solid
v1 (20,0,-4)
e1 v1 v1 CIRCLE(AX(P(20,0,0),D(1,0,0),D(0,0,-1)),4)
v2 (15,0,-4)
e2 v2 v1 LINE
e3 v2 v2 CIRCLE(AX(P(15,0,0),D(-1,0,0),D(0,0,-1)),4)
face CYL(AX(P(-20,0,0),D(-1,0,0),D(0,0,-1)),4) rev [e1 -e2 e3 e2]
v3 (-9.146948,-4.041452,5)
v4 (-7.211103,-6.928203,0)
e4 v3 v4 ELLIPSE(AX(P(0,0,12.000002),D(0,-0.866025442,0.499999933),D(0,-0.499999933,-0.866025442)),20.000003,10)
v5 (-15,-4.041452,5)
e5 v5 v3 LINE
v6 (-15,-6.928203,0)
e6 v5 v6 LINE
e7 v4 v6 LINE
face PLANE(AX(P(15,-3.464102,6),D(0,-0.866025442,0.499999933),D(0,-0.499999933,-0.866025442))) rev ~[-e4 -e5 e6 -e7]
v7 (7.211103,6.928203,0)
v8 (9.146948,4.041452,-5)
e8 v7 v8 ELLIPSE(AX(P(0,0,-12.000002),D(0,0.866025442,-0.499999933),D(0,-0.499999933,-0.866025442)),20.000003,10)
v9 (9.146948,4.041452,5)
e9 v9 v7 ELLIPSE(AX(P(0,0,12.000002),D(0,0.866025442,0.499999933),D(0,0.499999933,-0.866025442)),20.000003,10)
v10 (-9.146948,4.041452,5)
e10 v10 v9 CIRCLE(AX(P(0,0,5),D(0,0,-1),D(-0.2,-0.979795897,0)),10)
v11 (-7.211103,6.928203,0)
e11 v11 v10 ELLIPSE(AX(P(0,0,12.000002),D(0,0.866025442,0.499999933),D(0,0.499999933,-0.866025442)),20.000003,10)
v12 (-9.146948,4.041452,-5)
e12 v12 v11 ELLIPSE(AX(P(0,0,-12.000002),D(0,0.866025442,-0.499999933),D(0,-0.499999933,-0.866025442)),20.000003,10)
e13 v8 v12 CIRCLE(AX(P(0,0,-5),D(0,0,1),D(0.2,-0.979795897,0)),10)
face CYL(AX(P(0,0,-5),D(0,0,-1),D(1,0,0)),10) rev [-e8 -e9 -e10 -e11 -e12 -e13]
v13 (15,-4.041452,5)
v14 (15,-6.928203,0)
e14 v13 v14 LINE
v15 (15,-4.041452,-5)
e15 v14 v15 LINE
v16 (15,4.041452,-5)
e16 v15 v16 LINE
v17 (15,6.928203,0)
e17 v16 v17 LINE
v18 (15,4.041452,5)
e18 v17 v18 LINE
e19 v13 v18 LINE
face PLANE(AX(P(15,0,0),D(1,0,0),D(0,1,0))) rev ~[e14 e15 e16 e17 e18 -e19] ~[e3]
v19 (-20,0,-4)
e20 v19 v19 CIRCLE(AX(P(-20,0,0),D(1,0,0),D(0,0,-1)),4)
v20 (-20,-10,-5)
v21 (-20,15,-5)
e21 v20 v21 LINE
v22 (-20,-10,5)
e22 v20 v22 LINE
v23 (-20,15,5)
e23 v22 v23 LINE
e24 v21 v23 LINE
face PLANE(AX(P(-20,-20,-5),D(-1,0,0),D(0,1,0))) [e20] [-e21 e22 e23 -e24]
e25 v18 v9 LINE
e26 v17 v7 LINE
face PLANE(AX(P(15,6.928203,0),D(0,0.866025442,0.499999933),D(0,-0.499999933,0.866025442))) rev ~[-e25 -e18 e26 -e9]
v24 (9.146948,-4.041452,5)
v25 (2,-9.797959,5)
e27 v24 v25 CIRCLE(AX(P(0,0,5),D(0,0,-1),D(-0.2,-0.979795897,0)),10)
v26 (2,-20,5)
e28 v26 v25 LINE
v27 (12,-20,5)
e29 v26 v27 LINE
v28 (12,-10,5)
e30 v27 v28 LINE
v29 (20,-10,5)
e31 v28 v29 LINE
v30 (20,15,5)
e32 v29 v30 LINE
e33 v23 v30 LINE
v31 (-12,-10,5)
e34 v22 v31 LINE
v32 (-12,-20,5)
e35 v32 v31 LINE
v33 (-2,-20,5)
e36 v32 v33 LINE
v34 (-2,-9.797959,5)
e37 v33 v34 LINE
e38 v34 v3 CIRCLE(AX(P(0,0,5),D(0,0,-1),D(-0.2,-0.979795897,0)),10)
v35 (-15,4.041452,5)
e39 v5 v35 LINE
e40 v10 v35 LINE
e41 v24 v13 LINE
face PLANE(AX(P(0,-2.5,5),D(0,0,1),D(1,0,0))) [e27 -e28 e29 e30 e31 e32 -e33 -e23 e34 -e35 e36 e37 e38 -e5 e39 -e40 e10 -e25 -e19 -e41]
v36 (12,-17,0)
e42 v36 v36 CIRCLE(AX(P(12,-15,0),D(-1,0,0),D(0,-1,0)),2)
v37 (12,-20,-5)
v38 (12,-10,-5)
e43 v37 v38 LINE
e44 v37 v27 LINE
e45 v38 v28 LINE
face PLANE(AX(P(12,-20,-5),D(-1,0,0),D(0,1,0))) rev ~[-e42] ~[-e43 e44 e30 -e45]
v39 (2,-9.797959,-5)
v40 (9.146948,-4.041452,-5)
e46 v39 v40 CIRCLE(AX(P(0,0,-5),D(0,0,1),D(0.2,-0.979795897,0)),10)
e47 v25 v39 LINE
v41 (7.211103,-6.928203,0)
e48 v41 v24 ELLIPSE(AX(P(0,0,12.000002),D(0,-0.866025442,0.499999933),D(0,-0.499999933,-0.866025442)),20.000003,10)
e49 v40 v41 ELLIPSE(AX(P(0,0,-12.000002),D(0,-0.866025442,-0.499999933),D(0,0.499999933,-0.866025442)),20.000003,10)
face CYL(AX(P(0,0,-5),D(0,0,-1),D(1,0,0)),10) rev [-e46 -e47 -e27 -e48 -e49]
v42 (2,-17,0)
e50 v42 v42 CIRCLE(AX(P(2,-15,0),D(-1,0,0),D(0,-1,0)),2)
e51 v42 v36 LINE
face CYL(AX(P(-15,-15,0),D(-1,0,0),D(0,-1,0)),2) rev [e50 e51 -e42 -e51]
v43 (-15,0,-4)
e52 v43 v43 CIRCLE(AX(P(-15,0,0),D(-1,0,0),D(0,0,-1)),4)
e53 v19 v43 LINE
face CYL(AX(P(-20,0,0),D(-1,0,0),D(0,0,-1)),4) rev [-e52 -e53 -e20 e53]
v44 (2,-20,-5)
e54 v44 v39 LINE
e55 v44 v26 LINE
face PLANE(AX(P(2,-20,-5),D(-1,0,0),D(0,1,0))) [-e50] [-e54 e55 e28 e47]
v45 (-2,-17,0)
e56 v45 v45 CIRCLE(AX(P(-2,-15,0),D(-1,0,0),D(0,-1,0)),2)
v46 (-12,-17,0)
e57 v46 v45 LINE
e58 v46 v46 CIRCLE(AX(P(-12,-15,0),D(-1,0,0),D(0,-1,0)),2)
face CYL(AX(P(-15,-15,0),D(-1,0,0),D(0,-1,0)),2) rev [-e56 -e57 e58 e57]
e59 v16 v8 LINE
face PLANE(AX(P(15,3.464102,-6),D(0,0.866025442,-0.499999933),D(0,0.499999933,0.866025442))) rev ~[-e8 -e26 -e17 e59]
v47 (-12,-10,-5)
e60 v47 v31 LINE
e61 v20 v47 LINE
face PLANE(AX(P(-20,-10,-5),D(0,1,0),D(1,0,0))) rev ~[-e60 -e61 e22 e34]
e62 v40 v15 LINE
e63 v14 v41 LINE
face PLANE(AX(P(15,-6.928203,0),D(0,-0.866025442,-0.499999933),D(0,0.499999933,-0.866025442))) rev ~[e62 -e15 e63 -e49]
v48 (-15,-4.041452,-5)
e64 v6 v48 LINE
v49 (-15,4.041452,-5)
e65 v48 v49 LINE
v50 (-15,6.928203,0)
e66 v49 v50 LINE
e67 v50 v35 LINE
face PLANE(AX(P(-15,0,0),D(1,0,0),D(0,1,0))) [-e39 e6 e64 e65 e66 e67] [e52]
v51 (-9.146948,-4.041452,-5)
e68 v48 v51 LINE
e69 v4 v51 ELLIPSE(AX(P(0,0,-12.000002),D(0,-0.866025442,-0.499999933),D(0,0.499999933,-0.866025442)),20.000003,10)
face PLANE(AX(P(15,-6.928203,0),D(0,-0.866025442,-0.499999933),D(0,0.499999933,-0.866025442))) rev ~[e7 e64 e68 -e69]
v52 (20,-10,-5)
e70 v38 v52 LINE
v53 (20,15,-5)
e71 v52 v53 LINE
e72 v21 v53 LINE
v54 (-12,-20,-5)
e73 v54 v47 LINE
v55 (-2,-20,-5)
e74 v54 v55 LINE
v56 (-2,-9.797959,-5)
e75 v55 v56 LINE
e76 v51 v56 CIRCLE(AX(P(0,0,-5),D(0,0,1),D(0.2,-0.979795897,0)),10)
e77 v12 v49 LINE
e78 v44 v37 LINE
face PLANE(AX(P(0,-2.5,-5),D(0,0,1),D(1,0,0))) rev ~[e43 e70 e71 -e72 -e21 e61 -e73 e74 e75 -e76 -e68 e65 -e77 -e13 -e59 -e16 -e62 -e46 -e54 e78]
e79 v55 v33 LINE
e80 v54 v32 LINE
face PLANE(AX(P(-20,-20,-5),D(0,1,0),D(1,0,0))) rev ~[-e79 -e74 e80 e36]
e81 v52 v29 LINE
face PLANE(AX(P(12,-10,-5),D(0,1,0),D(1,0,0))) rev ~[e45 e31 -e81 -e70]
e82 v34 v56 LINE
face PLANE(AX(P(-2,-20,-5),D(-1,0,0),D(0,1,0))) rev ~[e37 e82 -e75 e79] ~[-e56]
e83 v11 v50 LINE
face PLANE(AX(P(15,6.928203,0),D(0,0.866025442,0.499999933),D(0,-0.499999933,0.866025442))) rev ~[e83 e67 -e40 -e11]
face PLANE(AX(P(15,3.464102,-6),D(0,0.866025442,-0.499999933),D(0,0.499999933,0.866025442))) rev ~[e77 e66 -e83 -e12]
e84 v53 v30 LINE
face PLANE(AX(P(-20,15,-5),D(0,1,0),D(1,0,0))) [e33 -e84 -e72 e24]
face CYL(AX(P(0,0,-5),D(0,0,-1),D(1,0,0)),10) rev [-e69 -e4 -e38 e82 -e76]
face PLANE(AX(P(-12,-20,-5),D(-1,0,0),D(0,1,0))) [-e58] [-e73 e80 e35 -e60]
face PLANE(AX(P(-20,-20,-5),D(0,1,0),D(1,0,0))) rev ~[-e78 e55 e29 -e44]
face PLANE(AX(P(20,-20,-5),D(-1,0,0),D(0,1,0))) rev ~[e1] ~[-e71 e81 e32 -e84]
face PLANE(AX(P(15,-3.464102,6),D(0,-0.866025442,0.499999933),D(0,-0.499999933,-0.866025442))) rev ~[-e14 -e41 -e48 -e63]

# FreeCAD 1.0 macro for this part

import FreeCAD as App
import Part
import Sketcher
from FreeCAD import Vector
Q = App.Units.Quantity


def add_polygon(sketch, points):
    """Adds a closed chain of lines whose ends are joined by coincident constraints."""
    first, n = sketch.GeometryCount, len(points)
    for a, b in zip(points, points[1:] + points[:1]):
        sketch.addGeometry(Part.LineSegment(App.Vector(*a, 0), App.Vector(*b, 0)), False)
    for i in range(n):
        sketch.addConstraint(Sketcher.Constraint("Coincident", first + i, 2, first + (i + 1) % n, 1))

doc = App.newDocument("Part")
params = doc.addObject("Spreadsheet::Sheet", "Params")
for row, (alias, value) in enumerate([
    ("sketch1_diameter", "20 mm"),
    ("pad1_length", "10 mm"),
    ("sketch2_diameter", "4 mm"),
    ("pad2_length", "30 mm"),
    ("pad3_length", "30 mm"),
    ("sketch4_diameter", "8 mm"),
    ("pad4_length", "40 mm"),
    ("sketch5_width", "8 mm"),
    ("sketch5_height", "10 mm"),
    ("pad5_length", "10 mm"),
    ("sketch6_width", "8 mm"),
    ("sketch6_height", "10 mm"),
    ("pad6_length", "10 mm"),
    ("sketch7_width", "4 mm"),
    ("sketch7_height", "12 mm"),
    ("pad7_length", "10 mm"),
    ("sketch8_width", "40 mm"),
    ("sketch8_height", "35 mm"),
    ("pad8_length", "10 mm"),
], start=1):
    params.set(f"A{row}", alias)
    params.set(f"B{row}", "=" + value)
    params.setAlias(f"B{row}", alias)

body = doc.addObject("PartDesign::Body", "Body")

sketch1 = body.newObject("Sketcher::SketchObject", "Sketch")
sketch1.AttachmentSupport = (doc.getObject("XY_Plane"), [""])
sketch1.MapMode = "FlatFace"
sketch1.AttachmentOffset = App.Placement(Vector(0, 0, -5), App.Rotation())
sketch1.addGeometry(Part.Circle(Vector(0, 0, 0), Vector(0, 0, 1), 10), False)
sketch1.addConstraint([
    Sketcher.Constraint("Coincident", 0, 3, -1, 1),
    Sketcher.Constraint("Diameter", 0, Q("20 mm")),
])
sketch1.setExpression("Constraints[1]", "Params.sketch1_diameter")
pad1 = body.newObject("PartDesign::Pad", "Pad")
pad1.Profile = sketch1
pad1.setExpression("Length", "Params.pad1_length")
body2 = doc.addObject("PartDesign::Body", "Body001")

sketch2 = body2.newObject("Sketcher::SketchObject", "Sketch001")
sketch2.AttachmentSupport = (doc.getObject("YZ_Plane001"), [""])
sketch2.MapMode = "FlatFace"
sketch2.AttachmentOffset = App.Placement(Vector(0, 0, -15), App.Rotation())
sketch2.addGeometry(Part.Circle(Vector(-15, 0, 0), Vector(0, 0, 1), 2), False)
sketch2.addConstraint([
    Sketcher.Constraint("PointOnObject", 0, 3, -1),
    Sketcher.Constraint("Diameter", 0, Q("4 mm")),
    Sketcher.Constraint("DistanceX", 0, 3, -1, 1, Q("15 mm")),
])
sketch2.setExpression("Constraints[1]", "Params.sketch2_diameter")
pad2 = body2.newObject("PartDesign::Pad", "Pad001")
pad2.Profile = sketch2
pad2.setExpression("Length", "Params.pad2_length")
body3 = doc.addObject("PartDesign::Body", "Body002")

sketch3 = body3.newObject("Sketcher::SketchObject", "Sketch002")
sketch3.AttachmentSupport = (doc.getObject("YZ_Plane002"), [""])
sketch3.MapMode = "FlatFace"
add_polygon(sketch3, [(3, 6), (-3, 6), (-7, 0), (-3, -6), (3, -6), (7, 0)])
sketch3.addConstraint([
    Sketcher.Constraint("Horizontal", 0),
    Sketcher.Constraint("Horizontal", 3),
    Sketcher.Constraint("Symmetric", 0, 2, 3, 2, -1, 1),
    Sketcher.Constraint("Symmetric", 1, 2, 4, 2, -1, 1),
    Sketcher.Constraint("PointOnObject", 1, 2, -1),
    Sketcher.Constraint("Parallel", 2, 5),
    Sketcher.Constraint("Vertical", 0, 2, 2, 2),
    Sketcher.Constraint("Angle", 1, Q("-119.999996 deg")),
    Sketcher.Constraint("DistanceY", -1, 1, 0, 2, Q("6 mm")),
    Sketcher.Constraint("DistanceX", 0, 2, -1, 1, Q("3.464102 mm")),
])
pad3 = body3.newObject("PartDesign::Pad", "Pad002")
pad3.Profile = sketch3
pad3.setExpression("Length", "Params.pad3_length")
pad3.Reversed = True
body4 = doc.addObject("PartDesign::Body", "Body003")
doc.recompute()

body3.Placement = App.Placement(Vector(15, 0, 0), App.Rotation(Vector(0, 0, 1), 0))
boolean = body4.newObject("PartDesign::Boolean", "Boolean")
boolean.Type = "Fuse"
boolean.addObjects([body3])
body5 = doc.addObject("PartDesign::Body", "Body004")

sketch4 = body5.newObject("Sketcher::SketchObject", "Sketch003")
sketch4.AttachmentSupport = (doc.getObject("XY_Plane004"), [""])
sketch4.MapMode = "FlatFace"
sketch4.addGeometry(Part.Circle(Vector(0, 0, 0), Vector(0, 0, 1), 4), False)
sketch4.addConstraint([
    Sketcher.Constraint("Coincident", 0, 3, -1, 1),
    Sketcher.Constraint("Diameter", 0, Q("8 mm")),
])
sketch4.setExpression("Constraints[1]", "Params.sketch4_diameter")
pad4 = body5.newObject("PartDesign::Pad", "Pad003")
pad4.Profile = sketch4
pad4.setExpression("Length", "Params.pad4_length")
body6 = doc.addObject("PartDesign::Body", "Body005")
doc.recompute()

body5.Placement = App.Placement(Vector(0, 0, 0), App.Rotation(Vector(0, 1, 0), 90))
boolean2 = body6.newObject("PartDesign::Boolean", "Boolean001")
boolean2.Type = "Fuse"
boolean2.addObjects([body5])
body7 = doc.addObject("PartDesign::Body", "Body006")
doc.recompute()

body6.Placement = App.Placement(Vector(-20, 0, 0), App.Rotation(Vector(0, 0, 1), 0))
boolean3 = body7.newObject("PartDesign::Boolean", "Boolean002")
boolean3.Type = "Fuse"
boolean3.addObjects([body6])
body8 = doc.addObject("PartDesign::Body", "Body007")

sketch5 = body8.newObject("Sketcher::SketchObject", "Sketch004")
sketch5.AttachmentSupport = (doc.getObject("XY_Plane007"), [""])
sketch5.MapMode = "FlatFace"
sketch5.AttachmentOffset = App.Placement(Vector(0, 0, -5), App.Rotation())
add_polygon(sketch5, [(-20, -10), (-20, -20), (-12, -20), (-12, -10)])
sketch5.addConstraint([
    Sketcher.Constraint("Vertical", 0),
    Sketcher.Constraint("Horizontal", 1),
    Sketcher.Constraint("Vertical", 2),
    Sketcher.Constraint("Horizontal", 3),
    Sketcher.Constraint("DistanceX", 1, 1, 1, 2, Q("8 mm")),
    Sketcher.Constraint("DistanceY", 0, 2, 0, 1, Q("10 mm")),
    Sketcher.Constraint("DistanceX", 0, 2, -1, 1, Q("20 mm")),
    Sketcher.Constraint("DistanceY", 0, 2, -1, 1, Q("20 mm")),
])
sketch5.setExpression("Constraints[8]", "Params.sketch5_width")
sketch5.setExpression("Constraints[9]", "Params.sketch5_height")
pad5 = body8.newObject("PartDesign::Pad", "Pad004")
pad5.Profile = sketch5
pad5.setExpression("Length", "Params.pad5_length")
body9 = doc.addObject("PartDesign::Body", "Body008")

sketch6 = body9.newObject("Sketcher::SketchObject", "Sketch005")
sketch6.AttachmentSupport = (doc.getObject("XY_Plane008"), [""])
sketch6.MapMode = "FlatFace"
sketch6.AttachmentOffset = App.Placement(Vector(0, 0, -5), App.Rotation())
add_polygon(sketch6, [(12, -10), (12, -20), (20, -20), (20, -10)])
sketch6.addConstraint([
    Sketcher.Constraint("Vertical", 0),
    Sketcher.Constraint("Horizontal", 1),
    Sketcher.Constraint("Vertical", 2),
    Sketcher.Constraint("Horizontal", 3),
    Sketcher.Constraint("DistanceX", 1, 1, 1, 2, Q("8 mm")),
    Sketcher.Constraint("DistanceY", 0, 2, 0, 1, Q("10 mm")),
    Sketcher.Constraint("DistanceX", -1, 1, 0, 2, Q("12 mm")),
    Sketcher.Constraint("DistanceY", 0, 2, -1, 1, Q("20 mm")),
])
sketch6.setExpression("Constraints[8]", "Params.sketch6_width")
sketch6.setExpression("Constraints[9]", "Params.sketch6_height")
pad6 = body9.newObject("PartDesign::Pad", "Pad005")
pad6.Profile = sketch6
pad6.setExpression("Length", "Params.pad6_length")
body10 = doc.addObject("PartDesign::Body", "Body009")

sketch7 = body10.newObject("Sketcher::SketchObject", "Sketch006")
sketch7.AttachmentSupport = (doc.getObject("XY_Plane009"), [""])
sketch7.MapMode = "FlatFace"
sketch7.AttachmentOffset = App.Placement(Vector(0, 0, -5), App.Rotation())
add_polygon(sketch7, [(-2, -8), (-2, -20), (2, -20), (2, -8)])
sketch7.addConstraint([
    Sketcher.Constraint("Vertical", 0),
    Sketcher.Constraint("Horizontal", 1),
    Sketcher.Constraint("Vertical", 2),
    Sketcher.Constraint("Horizontal", 3),
    Sketcher.Constraint("DistanceX", 1, 1, 1, 2, Q("4 mm")),
    Sketcher.Constraint("DistanceY", 0, 2, 0, 1, Q("12 mm")),
    Sketcher.Constraint("DistanceX", 0, 2, -1, 1, Q("2 mm")),
    Sketcher.Constraint("DistanceY", 0, 2, -1, 1, Q("20 mm")),
])
sketch7.setExpression("Constraints[8]", "Params.sketch7_width")
sketch7.setExpression("Constraints[9]", "Params.sketch7_height")
pad7 = body10.newObject("PartDesign::Pad", "Pad006")
pad7.Profile = sketch7
pad7.setExpression("Length", "Params.pad7_length")
doc.recompute()

boolean4 = body10.newObject("PartDesign::Boolean", "Boolean003")
boolean4.Type = "Fuse"
boolean4.addObjects([body])
doc.recompute()

boolean5 = body10.newObject("PartDesign::Boolean", "Boolean004")
boolean5.Type = "Fuse"
boolean5.addObjects([body2])
doc.recompute()

boolean6 = body10.newObject("PartDesign::Boolean", "Boolean005")
boolean6.Type = "Fuse"
boolean6.addObjects([body4])
doc.recompute()

boolean7 = body10.newObject("PartDesign::Boolean", "Boolean006")
boolean7.Type = "Fuse"
boolean7.addObjects([body7])
doc.recompute()

boolean8 = body10.newObject("PartDesign::Boolean", "Boolean007")
boolean8.Type = "Fuse"
boolean8.addObjects([body8])
doc.recompute()

boolean9 = body10.newObject("PartDesign::Boolean", "Boolean008")
boolean9.Type = "Fuse"
boolean9.addObjects([body9])
body11 = doc.addObject("PartDesign::Body", "Body010")

sketch8 = body11.newObject("Sketcher::SketchObject", "Sketch007")
sketch8.AttachmentSupport = (doc.getObject("XY_Plane010"), [""])
sketch8.MapMode = "FlatFace"
sketch8.AttachmentOffset = App.Placement(Vector(0, 0, -5), App.Rotation())
add_polygon(sketch8, [(-20, 15), (-20, -20), (20, -20), (20, 15)])
sketch8.addConstraint([
    Sketcher.Constraint("Vertical", 0),
    Sketcher.Constraint("Horizontal", 1),
    Sketcher.Constraint("Vertical", 2),
    Sketcher.Constraint("Horizontal", 3),
    Sketcher.Constraint("DistanceX", 1, 1, 1, 2, Q("40 mm")),
    Sketcher.Constraint("DistanceY", 0, 2, 0, 1, Q("35 mm")),
    Sketcher.Constraint("DistanceX", 0, 2, -1, 1, Q("20 mm")),
    Sketcher.Constraint("DistanceY", 0, 2, -1, 1, Q("20 mm")),
])
sketch8.setExpression("Constraints[8]", "Params.sketch8_width")
sketch8.setExpression("Constraints[9]", "Params.sketch8_height")
pad8 = body11.newObject("PartDesign::Pad", "Pad007")
pad8.Profile = sketch8
pad8.setExpression("Length", "Params.pad8_length")
doc.recompute()

boolean10 = body11.newObject("PartDesign::Boolean", "Boolean009")
boolean10.Type = "Cut"
boolean10.addObjects([body10])

doc.recompute()
